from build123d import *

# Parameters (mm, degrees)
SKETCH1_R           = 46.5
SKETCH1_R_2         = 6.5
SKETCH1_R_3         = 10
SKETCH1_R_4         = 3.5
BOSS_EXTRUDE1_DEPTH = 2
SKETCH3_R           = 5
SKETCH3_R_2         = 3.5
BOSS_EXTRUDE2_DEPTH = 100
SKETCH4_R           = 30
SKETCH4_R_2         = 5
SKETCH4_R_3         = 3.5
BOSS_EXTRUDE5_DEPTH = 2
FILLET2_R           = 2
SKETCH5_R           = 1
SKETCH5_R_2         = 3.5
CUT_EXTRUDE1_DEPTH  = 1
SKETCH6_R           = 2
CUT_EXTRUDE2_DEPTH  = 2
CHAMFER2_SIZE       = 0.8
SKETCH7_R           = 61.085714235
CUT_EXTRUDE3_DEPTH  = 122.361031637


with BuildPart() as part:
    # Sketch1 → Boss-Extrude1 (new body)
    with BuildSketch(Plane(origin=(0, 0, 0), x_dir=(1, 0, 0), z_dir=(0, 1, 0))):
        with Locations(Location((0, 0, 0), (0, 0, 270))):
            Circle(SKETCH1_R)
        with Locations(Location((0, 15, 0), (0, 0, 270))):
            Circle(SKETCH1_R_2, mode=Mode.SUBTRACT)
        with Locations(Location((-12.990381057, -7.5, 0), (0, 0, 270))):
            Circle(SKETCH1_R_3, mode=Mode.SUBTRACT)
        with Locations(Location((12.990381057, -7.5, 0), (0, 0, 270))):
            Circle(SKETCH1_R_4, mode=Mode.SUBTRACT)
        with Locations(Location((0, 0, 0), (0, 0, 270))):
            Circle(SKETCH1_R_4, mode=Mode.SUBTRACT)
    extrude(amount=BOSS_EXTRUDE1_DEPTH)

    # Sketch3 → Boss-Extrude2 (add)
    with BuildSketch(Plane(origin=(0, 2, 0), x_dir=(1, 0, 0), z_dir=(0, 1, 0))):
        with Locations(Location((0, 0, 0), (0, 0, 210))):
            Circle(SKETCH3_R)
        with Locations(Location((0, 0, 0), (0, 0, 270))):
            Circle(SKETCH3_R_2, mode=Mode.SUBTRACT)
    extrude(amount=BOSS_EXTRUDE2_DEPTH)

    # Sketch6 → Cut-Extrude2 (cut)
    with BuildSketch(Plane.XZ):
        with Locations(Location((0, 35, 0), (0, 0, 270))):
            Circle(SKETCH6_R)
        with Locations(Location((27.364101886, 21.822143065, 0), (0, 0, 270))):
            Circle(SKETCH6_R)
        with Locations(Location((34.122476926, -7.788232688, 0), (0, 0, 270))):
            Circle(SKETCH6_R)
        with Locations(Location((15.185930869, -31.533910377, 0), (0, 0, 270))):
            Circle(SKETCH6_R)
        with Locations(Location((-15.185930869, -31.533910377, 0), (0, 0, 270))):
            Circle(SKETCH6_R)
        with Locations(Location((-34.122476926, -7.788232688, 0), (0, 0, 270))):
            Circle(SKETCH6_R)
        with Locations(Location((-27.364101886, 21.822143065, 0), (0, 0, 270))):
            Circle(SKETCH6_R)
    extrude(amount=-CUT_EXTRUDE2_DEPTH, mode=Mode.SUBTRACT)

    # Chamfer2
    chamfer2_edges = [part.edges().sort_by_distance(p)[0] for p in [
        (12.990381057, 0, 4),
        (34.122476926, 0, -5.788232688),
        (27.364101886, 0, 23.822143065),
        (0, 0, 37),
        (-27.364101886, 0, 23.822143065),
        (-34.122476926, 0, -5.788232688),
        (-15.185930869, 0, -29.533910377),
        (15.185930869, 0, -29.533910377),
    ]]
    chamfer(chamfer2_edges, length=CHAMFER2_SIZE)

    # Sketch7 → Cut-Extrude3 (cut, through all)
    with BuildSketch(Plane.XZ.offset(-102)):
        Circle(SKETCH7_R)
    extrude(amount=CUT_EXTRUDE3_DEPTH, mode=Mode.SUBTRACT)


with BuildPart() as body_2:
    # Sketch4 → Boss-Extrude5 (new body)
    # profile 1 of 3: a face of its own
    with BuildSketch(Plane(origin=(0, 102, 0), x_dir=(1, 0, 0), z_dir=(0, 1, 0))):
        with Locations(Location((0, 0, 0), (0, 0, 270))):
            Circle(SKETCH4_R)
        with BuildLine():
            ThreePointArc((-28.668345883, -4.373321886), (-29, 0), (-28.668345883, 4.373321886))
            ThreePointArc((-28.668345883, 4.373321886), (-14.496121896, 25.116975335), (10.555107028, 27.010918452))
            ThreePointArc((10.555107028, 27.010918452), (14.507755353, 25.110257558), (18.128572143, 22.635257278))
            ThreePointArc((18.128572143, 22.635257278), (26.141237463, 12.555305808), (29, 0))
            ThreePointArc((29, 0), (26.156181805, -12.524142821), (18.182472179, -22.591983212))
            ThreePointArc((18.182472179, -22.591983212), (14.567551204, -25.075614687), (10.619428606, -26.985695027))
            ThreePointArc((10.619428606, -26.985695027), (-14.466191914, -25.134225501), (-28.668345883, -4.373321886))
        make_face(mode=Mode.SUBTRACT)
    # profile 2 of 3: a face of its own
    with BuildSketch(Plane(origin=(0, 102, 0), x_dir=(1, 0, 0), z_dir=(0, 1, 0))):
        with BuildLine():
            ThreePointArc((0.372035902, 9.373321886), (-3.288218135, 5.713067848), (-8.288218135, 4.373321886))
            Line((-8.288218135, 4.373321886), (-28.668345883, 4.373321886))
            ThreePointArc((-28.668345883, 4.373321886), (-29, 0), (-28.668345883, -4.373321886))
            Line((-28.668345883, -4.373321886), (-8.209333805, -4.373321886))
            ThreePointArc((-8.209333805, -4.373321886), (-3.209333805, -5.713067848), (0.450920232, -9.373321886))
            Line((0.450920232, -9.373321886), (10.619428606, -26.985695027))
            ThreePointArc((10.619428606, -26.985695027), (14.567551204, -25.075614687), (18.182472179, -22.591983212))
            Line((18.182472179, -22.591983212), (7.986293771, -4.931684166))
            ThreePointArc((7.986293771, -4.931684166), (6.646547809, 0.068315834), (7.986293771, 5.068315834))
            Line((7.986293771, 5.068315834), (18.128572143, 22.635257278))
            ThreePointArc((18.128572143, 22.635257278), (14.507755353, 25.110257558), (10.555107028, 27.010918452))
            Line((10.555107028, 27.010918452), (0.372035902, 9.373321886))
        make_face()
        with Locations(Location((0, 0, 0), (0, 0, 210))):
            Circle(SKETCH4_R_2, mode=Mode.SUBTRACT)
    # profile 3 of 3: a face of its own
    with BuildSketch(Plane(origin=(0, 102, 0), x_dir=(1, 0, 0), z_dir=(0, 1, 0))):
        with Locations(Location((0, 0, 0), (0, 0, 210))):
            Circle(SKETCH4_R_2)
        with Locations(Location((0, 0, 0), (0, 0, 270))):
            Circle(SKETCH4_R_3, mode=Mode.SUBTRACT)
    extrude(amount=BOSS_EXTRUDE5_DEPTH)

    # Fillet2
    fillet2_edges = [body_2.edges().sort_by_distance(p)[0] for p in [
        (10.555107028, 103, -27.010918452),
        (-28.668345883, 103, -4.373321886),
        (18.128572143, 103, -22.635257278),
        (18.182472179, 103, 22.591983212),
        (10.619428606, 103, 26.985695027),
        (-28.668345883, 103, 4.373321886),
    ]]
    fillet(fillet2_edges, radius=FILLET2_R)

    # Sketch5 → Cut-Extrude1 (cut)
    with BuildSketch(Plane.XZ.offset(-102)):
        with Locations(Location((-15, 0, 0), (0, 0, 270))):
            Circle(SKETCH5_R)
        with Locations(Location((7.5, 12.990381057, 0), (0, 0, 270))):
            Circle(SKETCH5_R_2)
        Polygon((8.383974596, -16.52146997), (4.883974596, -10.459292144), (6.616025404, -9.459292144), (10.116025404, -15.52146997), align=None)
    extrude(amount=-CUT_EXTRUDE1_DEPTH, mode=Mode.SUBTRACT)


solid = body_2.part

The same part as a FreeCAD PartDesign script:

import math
import FreeCAD as App
import Part
import Sketcher
from FreeCAD import Vector
Q = App.Units.Quantity


def edges_at(feature, points):
    """Names of the edges that pass closest to the given points."""
    edges = feature.Shape.Edges
    near = lambda p: min(range(len(edges)), key=lambda i: edges[i].distToShape(Part.Vertex(*p))[0])
    return sorted({f"Edge{near(p) + 1}" for p in points})


def add_polygon(sketch, points):
    """Adds a closed chain of lines whose ends are joined by coincident constraints."""
    first, n = sketch.GeometryCount, len(points)
    for a, b in zip(points, points[1:] + points[:1]):
        sketch.addGeometry(Part.LineSegment(App.Vector(*a, 0), App.Vector(*b, 0)), False)
    for i in range(n):
        sketch.addConstraint(Sketcher.Constraint("Coincident", first + i, 2, first + (i + 1) % n, 1))

doc = App.newDocument("Part")
body = doc.addObject("PartDesign::Body", "Body")

# Sketch on XZ plane
sketch1 = body.newObject("Sketcher::SketchObject", "Sketch")
sketch1.AttachmentSupport = (doc.getObject("XZ_Plane"), [""])
sketch1.MapMode = "FlatFace"
sketch1.addGeometry([
    Part.Circle(Vector(0, 0, 0), Vector(0, 0, 1), 46.5),  # 0
    Part.Circle(Vector(-13, 7.5, 0), Vector(0, 0, 1), 10),  # 1
    Part.Circle(Vector(0, -15, 0), Vector(0, 0, 1), 6.5),  # 2
    Part.Circle(Vector(0, 0, 0), Vector(0, 0, 1), 3.5),  # 3
    Part.Circle(Vector(13, 7.5, 0), Vector(0, 0, 1), 3.5),  # 4
], False)
sketch1.addConstraint([
    Sketcher.Constraint("Coincident", 0, 3, -1, 1),
    Sketcher.Constraint("Coincident", 3, 3, -1, 1),
    Sketcher.Constraint("Equal", 3, 4),
    Sketcher.Constraint("Symmetric", 1, 3, 4, 3, -2),
    Sketcher.Constraint("PointOnObject", 2, 3, -2),
    Sketcher.Constraint("Diameter", 0, 93.0),
    Sketcher.Constraint("Diameter", 1, 20.0),
    Sketcher.Constraint("Diameter", 2, 13.0),
    Sketcher.Constraint("Diameter", 3, 7.0),
    Sketcher.Constraint("DistanceY", 2, 3, -1, 1, 15.0),
    Sketcher.Constraint("DistanceY", -1, 1, 1, 3, 7.5),
    Sketcher.Constraint("DistanceX", 1, 3, -1, 1, 12.990381),
])
pad1 = body.newObject("PartDesign::Pad", "Pad")
pad1.Profile = sketch1
pad1.Length = 2
pad1.Reversed = True

# Sketch on XZ plane
sketch2 = body.newObject("Sketcher::SketchObject", "Sketch001")
sketch2.AttachmentSupport = (doc.getObject("XZ_Plane"), [""])
sketch2.MapMode = "FlatFace"
sketch2.AttachmentOffset = App.Placement(Vector(0, 0, -2), App.Rotation())
sketch2.addGeometry([
    Part.Circle(Vector(0, 0, 0), Vector(0, 0, 1), 5),
    Part.Circle(Vector(0, 0, 0), Vector(0, 0, 1), 3.5),
], False)
sketch2.addConstraint([
    Sketcher.Constraint("Coincident", 0, 3, -1, 1),
    Sketcher.Constraint("Coincident", 1, 3, -1, 1),
    Sketcher.Constraint("Diameter", 0, 10.0),
    Sketcher.Constraint("Diameter", 1, 7.0),
])
pad2 = body.newObject("PartDesign::Pad", "Pad001")
pad2.Profile = sketch2
pad2.Length = 100
pad2.Reversed = True

# Sketch on XZ plane
sketch3 = body.newObject("Sketcher::SketchObject", "Sketch002")
sketch3.AttachmentSupport = (doc.getObject("XZ_Plane"), [""])
sketch3.MapMode = "FlatFace"
sketch3.addGeometry([
    Part.Circle(Vector(0, 35, 0), Vector(0, 0, 1), 2),  # 0
    Part.Circle(Vector(27.4, 21.8, 0), Vector(0, 0, 1), 2),  # 1
    Part.Circle(Vector(34.1, -7.8, 0), Vector(0, 0, 1), 2),  # 2
    Part.Circle(Vector(15.2, -31.5, 0), Vector(0, 0, 1), 2),  # 3
    Part.Circle(Vector(-15.2, -31.5, 0), Vector(0, 0, 1), 2),  # 4
    Part.Circle(Vector(-34.1, -7.8, 0), Vector(0, 0, 1), 2),  # 5
    Part.Circle(Vector(-27.4, 21.8, 0), Vector(0, 0, 1), 2),  # 6
], False)
sketch3.addConstraint([
    Sketcher.Constraint("Equal", 0, 1),
    Sketcher.Constraint("Equal", 1, 2),
    Sketcher.Constraint("Equal", 2, 3),
    Sketcher.Constraint("Equal", 3, 4),
    Sketcher.Constraint("Equal", 4, 5),
    Sketcher.Constraint("Equal", 5, 6),
    Sketcher.Constraint("Symmetric", 3, 3, 4, 3, -2),
    Sketcher.Constraint("Symmetric", 2, 3, 5, 3, -2),
    Sketcher.Constraint("Symmetric", 1, 3, 6, 3, -2),
    Sketcher.Constraint("PointOnObject", 0, 3, -2),
    Sketcher.Constraint("Diameter", 0, 4.0),
    Sketcher.Constraint("DistanceY", -1, 1, 0, 3, 35.0),
    Sketcher.Constraint("DistanceX", -1, 1, 1, 3, 27.364102),
    Sketcher.Constraint("DistanceX", -1, 1, 3, 3, 15.185931),
    Sketcher.Constraint("DistanceY", 3, 3, -1, 1, 31.53391),
    Sketcher.Constraint("DistanceX", 5, 3, 1, 3, 61.486579),
    Sketcher.Constraint("DistanceY", -1, 1, 1, 3, 21.822143),
    Sketcher.Constraint("DistanceY", 2, 3, -1, 1, 7.788233),
])
pocket1 = body.newObject("PartDesign::Pocket", "Pocket")
pocket1.Profile = sketch3
pocket1.Length = 2
doc.recompute()

chamfer = body.newObject("PartDesign::Chamfer", "Chamfer")
chamfer.Base = (pocket1, edges_at(pocket1, [
    (12.99, 0, 4),
    (34.122, 0, -5.788),
    (27.364, 0, 23.822),
    (0, 0, 37),
    (-27.364, 0, 23.822),
    (-34.122, 0, -5.788),
    (-15.186, 0, -29.534),
    (15.186, 0, -29.534),
]))
chamfer.Size = 0.8

# Sketch on XZ plane
sketch4 = body.newObject("Sketcher::SketchObject", "Sketch003")
sketch4.AttachmentSupport = (doc.getObject("XZ_Plane"), [""])
sketch4.MapMode = "FlatFace"
sketch4.AttachmentOffset = App.Placement(Vector(0, 0, -102), App.Rotation())
sketch4.addGeometry(Part.Circle(Vector(0, 0, 0), Vector(0, 0, 1), 61), False)
sketch4.addConstraint([
    Sketcher.Constraint("Coincident", 0, 3, -1, 1),
    Sketcher.Constraint("Diameter", 0, 122.171428),
])
pocket2 = body.newObject("PartDesign::Pocket", "Pocket001")
pocket2.Profile = sketch4
pocket2.Type = "ThroughAll"
pocket2.Reversed = True
body2 = doc.addObject("PartDesign::Body", "Body001")

# Sketch on XZ plane
sketch5 = body2.newObject("Sketcher::SketchObject", "Sketch004")
sketch5.AttachmentSupport = (doc.getObject("XZ_Plane001"), [""])
sketch5.MapMode = "FlatFace"
sketch5.AttachmentOffset = App.Placement(Vector(0, 0, -102), App.Rotation())
sketch5.addGeometry([
    Part.Circle(Vector(0, 0, 0), Vector(0, 0, 1), 30),  # 0
    Part.ArcOfCircle(Part.Circle(Vector(0, 0, 0), Vector(0, 0, 1), 29), math.radians(69), math.radians(171)),  # 1
    Part.LineSegment(Vector(-28.7, 4.4, 0), Vector(-8.2, 4.4, 0)),  # 2
    Part.ArcOfCircle(Part.Circle(Vector(-8.2, 14.4, 0), Vector(0, 0, 1), 10), math.radians(-90), math.radians(-30)),  # 3
    Part.LineSegment(Vector(0.5, 9.4, 0), Vector(10.6, 27, 0)),  # 4
    Part.ArcOfCircle(Part.Circle(Vector(0, 0, 0), Vector(0, 0, 1), 29), math.radians(0), math.radians(51)),  # 5
    Part.LineSegment(Vector(18.2, 22.6, 0), Vector(8, 4.9, 0)),  # 6
    Part.ArcOfCircle(Part.Circle(Vector(16.6, -0.1, 0), Vector(0, 0, 1), 10), math.radians(150), math.radians(210)),  # 7
    Part.LineSegment(Vector(8, -5.1, 0), Vector(18.1, -22.6, 0)),  # 8
    Part.ArcOfCircle(Part.Circle(Vector(0, 0, 0), Vector(0, 0, 1), 29), math.radians(-51), math.radians(0)),  # 9
    Part.ArcOfCircle(Part.Circle(Vector(0, 0, 0), Vector(0, 0, 1), 29), math.radians(-171), math.radians(-69)),  # 10
    Part.LineSegment(Vector(10.6, -27, 0), Vector(0.4, -9.4, 0)),  # 11
    Part.ArcOfCircle(Part.Circle(Vector(-8.3, -14.4, 0), Vector(0, 0, 1), 10), math.radians(30), math.radians(90)),  # 12
    Part.LineSegment(Vector(-8.3, -4.4, 0), Vector(-28.7, -4.4, 0)),  # 13
    Part.Circle(Vector(0, 0, 0), Vector(0, 0, 1), 3.5),  # 14
], False)
sketch5.addConstraint([
    Sketcher.Constraint("Coincident", 1, 2, 2, 1),
    Sketcher.Constraint("Tangent", 2, 2, 3, 1),
    Sketcher.Constraint("Tangent", 3, 2, 4, 1),
    Sketcher.Constraint("Coincident", 4, 2, 1, 1),
    Sketcher.Constraint("Coincident", 5, 2, 6, 1),
    Sketcher.Constraint("Tangent", 6, 2, 7, 1),
    Sketcher.Constraint("Tangent", 7, 2, 8, 1),
    Sketcher.Constraint("Coincident", 8, 2, 9, 1),
    Sketcher.Constraint("Tangent", 9, 2, 5, 1),
    Sketcher.Constraint("Coincident", 10, 2, 11, 1),
    Sketcher.Constraint("Tangent", 11, 2, 12, 1),
    Sketcher.Constraint("Tangent", 12, 2, 13, 1),
    Sketcher.Constraint("Coincident", 13, 2, 10, 1),
    Sketcher.Constraint("Horizontal", 2),
    Sketcher.Constraint("Horizontal", 13),
    Sketcher.Constraint("Coincident", 0, 3, -1, 1),
    Sketcher.Constraint("Coincident", 1, 3, -1, 1),
    Sketcher.Constraint("Coincident", 5, 3, -1, 1),
    Sketcher.Constraint("Coincident", 10, 3, -1, 1),
    Sketcher.Constraint("Coincident", 14, 3, -1, 1),
    Sketcher.Constraint("Equal", 1, 5),
    Sketcher.Constraint("Equal", 3, 7),
    Sketcher.Constraint("Equal", 5, 9),
    Sketcher.Constraint("Equal", 9, 10),
    Sketcher.Constraint("Equal", 7, 12),
    Sketcher.Constraint("PointOnObject", 9, 2, -1),
    Sketcher.Constraint("Parallel", 4, 6),
    Sketcher.Constraint("Parallel", 8, 11),
    Sketcher.Constraint("Vertical", 6, 2, 7, 2),
    Sketcher.Constraint("Vertical", 1, 2, 13, 2),
    Sketcher.Constraint("Diameter", 0, 60.0),
    Sketcher.Constraint("Diameter", 14, 7.0),
    Sketcher.Constraint("Radius", 1, 29.0),
    Sketcher.Constraint("Radius", 3, 10.0),
    Sketcher.Constraint("Angle", 4, Q("60 deg")),
    Sketcher.Constraint("DistanceY", 7, 3, 5, 2, 22.660299),
    Sketcher.Constraint("DistanceX", 2, 1, 2, 2, 20.459012),
    Sketcher.Constraint("DistanceX", 13, 2, 13, 1, 20.380128),
    Sketcher.Constraint("DistanceY", -1, 1, 3, 3, 14.373322),
    Sketcher.Constraint("DistanceX", 3, 3, 7, 3, 24.855882),
])
pad3 = body2.newObject("PartDesign::Pad", "Pad002")
pad3.Profile = sketch5
pad3.Length = 2
pad3.Reversed = True
doc.recompute()

fillet = body2.newObject("PartDesign::Fillet", "Fillet")
fillet.Base = (pad3, edges_at(pad3, [
    (10.555, 103, -27.011),
    (-28.668, 103, -4.373),
    (18.129, 103, -22.635),
    (18.182, 103, 22.592),
    (10.619, 103, 26.986),
    (-28.668, 103, 4.373),
]))
fillet.Radius = 2

# Sketch on XZ plane
sketch6 = body2.newObject("Sketcher::SketchObject", "Sketch005")
sketch6.AttachmentSupport = (doc.getObject("XZ_Plane001"), [""])
sketch6.MapMode = "FlatFace"
sketch6.AttachmentOffset = App.Placement(Vector(0, 0, -102), App.Rotation())
sketch6.addGeometry(Part.Circle(Vector(-15, 0, 0), Vector(0, 0, 1), 1), False)  # 0
sketch6.addGeometry(Part.Circle(Vector(7.5, 13, 0), Vector(0, 0, 1), 3.5), False)  # 1
add_polygon(sketch6, [(4.9, -10.5), (8.4, -16.5), (10.1, -15.5), (6.6, -9.5)])  # lines 2-5
sketch6.addConstraint([
    Sketcher.Constraint("PointOnObject", 0, 3, -1),
    Sketcher.Constraint("Perpendicular", 2, 3),
    Sketcher.Constraint("Perpendicular", 3, 4),
    Sketcher.Constraint("Perpendicular", 4, 5),
    Sketcher.Constraint("Diameter", 0, 2.0),
    Sketcher.Constraint("Diameter", 1, 7.0),
    Sketcher.Constraint("Angle", 2, Q("-60 deg")),
    Sketcher.Constraint("Distance", 2, 7.0),
    Sketcher.Constraint("Distance", 3, 2.0),
    Sketcher.Constraint("DistanceX", 0, 3, -1, 1, 15.0),
    Sketcher.Constraint("DistanceX", -1, 1, 1, 3, 7.5),
    Sketcher.Constraint("DistanceY", -1, 1, 1, 3, 12.990381),
    Sketcher.Constraint("DistanceY", 2, 2, -1, 1, 16.52147),
    Sketcher.Constraint("DistanceX", -1, 1, 2, 2, 8.383975),
])
pocket3 = body2.newObject("PartDesign::Pocket", "Pocket002")
pocket3.Profile = sketch6
pocket3.Length = 1

doc.recompute()
